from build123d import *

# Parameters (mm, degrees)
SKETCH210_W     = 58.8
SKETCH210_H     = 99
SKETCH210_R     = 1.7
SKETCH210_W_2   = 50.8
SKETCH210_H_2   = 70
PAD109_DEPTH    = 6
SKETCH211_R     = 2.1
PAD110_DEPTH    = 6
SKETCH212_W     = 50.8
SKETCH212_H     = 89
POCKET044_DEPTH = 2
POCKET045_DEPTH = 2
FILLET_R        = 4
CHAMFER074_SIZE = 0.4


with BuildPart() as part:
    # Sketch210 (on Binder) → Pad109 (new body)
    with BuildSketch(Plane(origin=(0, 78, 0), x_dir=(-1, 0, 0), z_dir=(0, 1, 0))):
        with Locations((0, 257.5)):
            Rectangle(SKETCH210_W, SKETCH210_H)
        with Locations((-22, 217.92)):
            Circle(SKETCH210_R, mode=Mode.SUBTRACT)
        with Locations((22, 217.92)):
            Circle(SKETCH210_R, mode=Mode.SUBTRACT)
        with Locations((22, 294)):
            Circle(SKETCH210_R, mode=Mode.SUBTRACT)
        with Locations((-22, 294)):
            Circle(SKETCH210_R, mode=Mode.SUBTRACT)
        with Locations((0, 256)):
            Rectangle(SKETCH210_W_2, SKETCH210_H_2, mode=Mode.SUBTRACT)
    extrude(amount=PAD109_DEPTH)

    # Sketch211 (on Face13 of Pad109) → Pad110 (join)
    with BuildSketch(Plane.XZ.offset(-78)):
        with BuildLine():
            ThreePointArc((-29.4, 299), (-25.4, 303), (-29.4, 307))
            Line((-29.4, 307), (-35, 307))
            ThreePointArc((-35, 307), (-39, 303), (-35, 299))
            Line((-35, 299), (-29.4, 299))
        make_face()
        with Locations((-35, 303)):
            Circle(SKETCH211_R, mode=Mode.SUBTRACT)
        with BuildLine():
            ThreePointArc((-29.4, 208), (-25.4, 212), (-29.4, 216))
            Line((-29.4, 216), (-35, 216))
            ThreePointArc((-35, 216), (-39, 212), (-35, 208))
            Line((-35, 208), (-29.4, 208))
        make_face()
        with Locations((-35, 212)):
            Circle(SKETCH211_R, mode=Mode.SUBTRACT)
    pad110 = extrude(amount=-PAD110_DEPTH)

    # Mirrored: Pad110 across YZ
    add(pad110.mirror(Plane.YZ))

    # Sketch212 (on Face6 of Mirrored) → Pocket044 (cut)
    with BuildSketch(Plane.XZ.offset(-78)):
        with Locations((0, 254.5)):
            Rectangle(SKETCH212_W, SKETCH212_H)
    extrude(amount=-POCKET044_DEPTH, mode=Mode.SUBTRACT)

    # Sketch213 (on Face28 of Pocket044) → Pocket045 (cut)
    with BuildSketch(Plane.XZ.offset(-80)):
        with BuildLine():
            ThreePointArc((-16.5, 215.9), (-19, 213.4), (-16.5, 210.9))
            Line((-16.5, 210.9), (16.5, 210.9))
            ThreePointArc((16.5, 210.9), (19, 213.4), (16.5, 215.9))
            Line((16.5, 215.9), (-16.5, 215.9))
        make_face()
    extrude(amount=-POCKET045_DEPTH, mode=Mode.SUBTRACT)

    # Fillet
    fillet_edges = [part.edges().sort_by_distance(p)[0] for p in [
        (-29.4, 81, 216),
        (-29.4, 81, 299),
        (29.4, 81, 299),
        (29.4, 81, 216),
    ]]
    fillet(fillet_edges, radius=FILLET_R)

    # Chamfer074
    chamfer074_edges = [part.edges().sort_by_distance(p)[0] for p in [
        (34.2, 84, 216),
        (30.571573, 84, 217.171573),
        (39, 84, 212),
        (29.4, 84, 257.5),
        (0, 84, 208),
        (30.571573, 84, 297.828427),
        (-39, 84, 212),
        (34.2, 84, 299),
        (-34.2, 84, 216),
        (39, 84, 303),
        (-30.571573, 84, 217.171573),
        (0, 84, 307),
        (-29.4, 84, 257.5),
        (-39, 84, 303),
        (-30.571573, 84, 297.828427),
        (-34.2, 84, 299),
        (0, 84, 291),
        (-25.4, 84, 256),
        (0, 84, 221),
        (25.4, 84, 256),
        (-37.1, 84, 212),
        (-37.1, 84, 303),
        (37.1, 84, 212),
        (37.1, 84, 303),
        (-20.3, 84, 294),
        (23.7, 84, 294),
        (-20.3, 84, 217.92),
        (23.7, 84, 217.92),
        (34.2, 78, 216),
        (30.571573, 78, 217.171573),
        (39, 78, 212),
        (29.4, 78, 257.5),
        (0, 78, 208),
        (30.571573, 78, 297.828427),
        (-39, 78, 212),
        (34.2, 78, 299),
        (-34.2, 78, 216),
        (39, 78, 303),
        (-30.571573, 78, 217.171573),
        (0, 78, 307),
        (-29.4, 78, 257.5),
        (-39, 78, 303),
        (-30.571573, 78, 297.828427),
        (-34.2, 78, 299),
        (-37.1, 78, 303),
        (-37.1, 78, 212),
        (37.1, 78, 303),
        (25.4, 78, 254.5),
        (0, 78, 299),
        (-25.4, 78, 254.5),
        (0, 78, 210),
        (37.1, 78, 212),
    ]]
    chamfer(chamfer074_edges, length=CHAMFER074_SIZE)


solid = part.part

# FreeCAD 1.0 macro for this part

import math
import FreeCAD as App
import Part
import Sketcher
from FreeCAD import Vector


def edges_at(feature, points):
    """Names of the edges that pass closest to the given points."""
    edges = feature.Shape.Edges
    near = lambda p: min(range(len(edges)), key=lambda i: edges[i].distToShape(Part.Vertex(*p))[0])
    return sorted({f"Edge{near(p) + 1}" for p in points})


def add_polygon(sketch, points):
    """Adds a closed chain of lines whose ends are joined by coincident constraints."""
    first, n = sketch.GeometryCount, len(points)
    for a, b in zip(points, points[1:] + points[:1]):
        sketch.addGeometry(Part.LineSegment(App.Vector(*a, 0), App.Vector(*b, 0)), False)
    for i in range(n):
        sketch.addConstraint(Sketcher.Constraint("Coincident", first + i, 2, first + (i + 1) % n, 1))

doc = App.newDocument("Part")
body = doc.addObject("PartDesign::Body", "Body")

sketch1 = body.newObject("Sketcher::SketchObject", "Sketch")
sketch1.AttachmentSupport = (doc.getObject("XZ_Plane"), [""])
sketch1.MapMode = "FlatFace"
sketch1.AttachmentOffset = App.Placement(Vector(0, 0, -78), App.Rotation())
add_polygon(sketch1, [(29.4, 307), (29.4, 208), (-29.4, 208), (-29.4, 307)])
sketch1.addGeometry(Part.Circle(Vector(22, 217.9, 0), Vector(0, 0, 1), 1.7), False)
sketch1.addGeometry(Part.Circle(Vector(-22, 217.9, 0), Vector(0, 0, 1), 1.7), False)
add_polygon(sketch1, [(-25.4, 221), (25.4, 221), (25.4, 291), (-25.4, 291)])
sketch1.addGeometry(Part.Circle(Vector(22, 294, 0), Vector(0, 0, 1), 1.7), False)
sketch1.addGeometry(Part.Circle(Vector(-22, 294, 0), Vector(0, 0, 1), 1.7), False)
sketch1.addConstraint([
    Sketcher.Constraint("Vertical", 0),
    Sketcher.Constraint("Horizontal", 1),
    Sketcher.Constraint("Vertical", 2),
    Sketcher.Constraint("Horizontal", 3),
    Sketcher.Constraint("Horizontal", 6),
    Sketcher.Constraint("Vertical", 7),
    Sketcher.Constraint("Horizontal", 8),
    Sketcher.Constraint("Vertical", 9),
    Sketcher.Constraint("Equal", 4, 5),
    Sketcher.Constraint("Equal", 5, 10),
    Sketcher.Constraint("Equal", 10, 11),
    Sketcher.Constraint("Symmetric", 4, 3, 5, 3, -2),
    Sketcher.Constraint("Symmetric", 10, 3, 11, 3, -2),
    Sketcher.Constraint("Vertical", 4, 3, 10, 3),
    Sketcher.Constraint("Diameter", 4, 3.4),
    Sketcher.Constraint("DistanceY", 0, 2, 0, 1, 99.0),
    Sketcher.Constraint("DistanceY", 7, 1, 7, 2, 70.0),
    Sketcher.Constraint("DistanceX", 1, 2, 1, 1, 58.8),
    Sketcher.Constraint("DistanceX", 6, 1, 6, 2, 50.8),
    Sketcher.Constraint("DistanceX", -1, 1, 4, 3, 22.0),
    Sketcher.Constraint("DistanceY", -1, 1, 10, 3, 294.0),
    Sketcher.Constraint("DistanceY", -1, 1, 0, 2, 208.0),
    Sketcher.Constraint("DistanceY", -1, 1, 6, 2, 221.0),
    Sketcher.Constraint("DistanceX", 6, 2, 0, 2, 4.0),
    Sketcher.Constraint("DistanceX", -1, 1, 0, 2, 29.4),
    Sketcher.Constraint("DistanceY", -1, 1, 4, 3, 217.92),
])
pad1 = body.newObject("PartDesign::Pad", "Pad")
pad1.Profile = sketch1
pad1.Length = 6
pad1.Reversed = True

sketch2 = body.newObject("Sketcher::SketchObject", "Sketch001")
sketch2.AttachmentSupport = (doc.getObject("XZ_Plane"), [""])
sketch2.MapMode = "FlatFace"
sketch2.AttachmentOffset = App.Placement(Vector(0, 0, -78), App.Rotation())
sketch2.addGeometry([
    Part.ArcOfCircle(Part.Circle(Vector(-29.4, 303, 0), Vector(0, 0, 1), 4), math.radians(-90), math.radians(90)),
    Part.LineSegment(Vector(-29.4, 307, 0), Vector(-35, 307, 0)),
    Part.ArcOfCircle(Part.Circle(Vector(-35, 303, 0), Vector(0, 0, 1), 4), math.radians(90), math.radians(270)),
    Part.LineSegment(Vector(-35, 299, 0), Vector(-29.4, 299, 0)),
    Part.Circle(Vector(-35, 303, 0), Vector(0, 0, 1), 2.1),
    Part.ArcOfCircle(Part.Circle(Vector(-29.4, 212, 0), Vector(0, 0, 1), 4), math.radians(-90), math.radians(90)),
    Part.LineSegment(Vector(-29.4, 216, 0), Vector(-35, 216, 0)),
    Part.ArcOfCircle(Part.Circle(Vector(-35, 212, 0), Vector(0, 0, 1), 4), math.radians(90), math.radians(270)),
    Part.LineSegment(Vector(-35, 208, 0), Vector(-29.4, 208, 0)),
    Part.Circle(Vector(-35, 212, 0), Vector(0, 0, 1), 2.1),
], False)
sketch2.addConstraint([
    Sketcher.Constraint("Tangent", 0, 2, 1, 1),
    Sketcher.Constraint("Tangent", 1, 2, 2, 1),
    Sketcher.Constraint("Tangent", 2, 2, 3, 1),
    Sketcher.Constraint("Tangent", 3, 2, 0, 1),
    Sketcher.Constraint("Tangent", 5, 2, 6, 1),
    Sketcher.Constraint("Tangent", 6, 2, 7, 1),
    Sketcher.Constraint("Tangent", 7, 2, 8, 1),
    Sketcher.Constraint("Tangent", 8, 2, 5, 1),
    Sketcher.Constraint("Horizontal", 1),
    Sketcher.Constraint("Horizontal", 3),
    Sketcher.Constraint("Horizontal", 6),
    Sketcher.Constraint("Horizontal", 8),
    Sketcher.Constraint("Coincident", 4, 3, 2, 3),
    Sketcher.Constraint("Coincident", 9, 3, 7, 3),
    Sketcher.Constraint("Equal", 2, 5),
    Sketcher.Constraint("Equal", 4, 9),
    Sketcher.Constraint("Vertical", 0, 3, 5, 3),
    Sketcher.Constraint("Vertical", 4, 3, 7, 3),
    Sketcher.Constraint("Radius", 0, 4.0),
    Sketcher.Constraint("Diameter", 4, 4.2),
    Sketcher.Constraint("DistanceX", 1, 2, 1, 1, 5.6),
    Sketcher.Constraint("DistanceY", -1, 1, 0, 3, 303.0),
    Sketcher.Constraint("DistanceX", 2, 3, -1, 1, 35.0),
    Sketcher.Constraint("DistanceY", -1, 1, 5, 3, 212.0),
])
pad2 = body.newObject("PartDesign::Pad", "Pad001")
pad2.Profile = sketch2
pad2.Length = 6
pad2.Reversed = True
doc.recompute()

mirrored = body.newObject("PartDesign::Mirrored", "Mirrored")
mirrored.Originals = [pad2]
mirrored.MirrorPlane = (doc.getObject("YZ_Plane"), [""])
body.Tip = mirrored

sketch3 = body.newObject("Sketcher::SketchObject", "Sketch002")
sketch3.AttachmentSupport = (doc.getObject("XZ_Plane"), [""])
sketch3.MapMode = "FlatFace"
sketch3.AttachmentOffset = App.Placement(Vector(0, 0, -78), App.Rotation())
add_polygon(sketch3, [(-25, 299), (-25, 210), (25, 210), (25, 299)])
sketch3.addConstraint([
    Sketcher.Constraint("Vertical", 0),
    Sketcher.Constraint("Horizontal", 1),
    Sketcher.Constraint("Vertical", 2),
    Sketcher.Constraint("Horizontal", 3),
    Sketcher.Constraint("DistanceY", 0, 2, 0, 1, 89.0),
    Sketcher.Constraint("DistanceX", 1, 1, 1, 2, 50.8),
    Sketcher.Constraint("DistanceY", -1, 1, 0, 2, 210.0),
    Sketcher.Constraint("DistanceX", 0, 2, -1, 1, 25.4),
])
pocket1 = body.newObject("PartDesign::Pocket", "Pocket")
pocket1.Profile = sketch3
pocket1.Length = 2

sketch4 = body.newObject("Sketcher::SketchObject", "Sketch003")
sketch4.AttachmentSupport = (doc.getObject("XZ_Plane"), [""])
sketch4.MapMode = "FlatFace"
sketch4.AttachmentOffset = App.Placement(Vector(0, 0, -80), App.Rotation())
sketch4.addGeometry([
    Part.ArcOfCircle(Part.Circle(Vector(-16.5, 213.4, 0), Vector(0, 0, 1), 2.5), math.radians(90), math.radians(270)),
    Part.LineSegment(Vector(-16.5, 210.9, 0), Vector(16.5, 210.9, 0)),
    Part.ArcOfCircle(Part.Circle(Vector(16.5, 213.4, 0), Vector(0, 0, 1), 2.5), math.radians(-90), math.radians(90)),
    Part.LineSegment(Vector(16.5, 215.9, 0), Vector(-16.5, 215.9, 0)),
], False)
sketch4.addConstraint([
    Sketcher.Constraint("Tangent", 0, 2, 1, 1),
    Sketcher.Constraint("Tangent", 1, 2, 2, 1),
    Sketcher.Constraint("Tangent", 2, 2, 3, 1),
    Sketcher.Constraint("Tangent", 3, 2, 0, 1),
    Sketcher.Constraint("Horizontal", 1),
    Sketcher.Constraint("Horizontal", 3),
    Sketcher.Constraint("Radius", 0, 2.5),
    Sketcher.Constraint("DistanceX", 1, 1, 1, 2, 33.0),
    Sketcher.Constraint("DistanceX", 0, 3, -1, 1, 16.5),
    Sketcher.Constraint("DistanceY", -1, 1, 0, 3, 213.4),
])
pocket2 = body.newObject("PartDesign::Pocket", "Pocket001")
pocket2.Profile = sketch4
pocket2.Length = 2
doc.recompute()

fillet = body.newObject("PartDesign::Fillet", "Fillet")
fillet.Base = (pocket2, edges_at(pocket2, [
    (-29.4, 81, 216),
    (-29.4, 81, 299),
    (29.4, 81, 299),
    (29.4, 81, 216),
]))
fillet.Radius = 4
doc.recompute()

chamfer = body.newObject("PartDesign::Chamfer", "Chamfer")
chamfer.Base = (fillet, edges_at(fillet, [
    (34.2, 84, 216),
    (30.572, 84, 217.172),
    (39, 84, 212),
    (29.4, 84, 257.5),
    (0, 84, 208),
    (30.572, 84, 297.828),
    (-39, 84, 212),
    (34.2, 84, 299),
    (-34.2, 84, 216),
    (39, 84, 303),
    (-30.572, 84, 217.172),
    (0, 84, 307),
    (-29.4, 84, 257.5),
    (-39, 84, 303),
    (-30.572, 84, 297.828),
    (-34.2, 84, 299),
    (0, 84, 291),
    (-25.4, 84, 256),
    (0, 84, 221),
    (25.4, 84, 256),
    (-37.1, 84, 212),
    (-37.1, 84, 303),
    (37.1, 84, 212),
    (37.1, 84, 303),
    (-20.3, 84, 294),
    (23.7, 84, 294),
    (-20.3, 84, 217.92),
    (23.7, 84, 217.92),
    (34.2, 78, 216),
    (30.572, 78, 217.172),
    (39, 78, 212),
    (29.4, 78, 257.5),
    (0, 78, 208),
    (30.572, 78, 297.828),
    (-39, 78, 212),
    (34.2, 78, 299),
    (-34.2, 78, 216),
    (39, 78, 303),
    (-30.572, 78, 217.172),
    (0, 78, 307),
    (-29.4, 78, 257.5),
    (-39, 78, 303),
    (-30.572, 78, 297.828),
    (-34.2, 78, 299),
    (-37.1, 78, 303),
    (-37.1, 78, 212),
    (37.1, 78, 303),
    (25.4, 78, 254.5),
    (0, 78, 299),
    (-25.4, 78, 254.5),
    (0, 78, 210),
    (37.1, 78, 212),
]))
chamfer.Size = 0.4

doc.recompute()
